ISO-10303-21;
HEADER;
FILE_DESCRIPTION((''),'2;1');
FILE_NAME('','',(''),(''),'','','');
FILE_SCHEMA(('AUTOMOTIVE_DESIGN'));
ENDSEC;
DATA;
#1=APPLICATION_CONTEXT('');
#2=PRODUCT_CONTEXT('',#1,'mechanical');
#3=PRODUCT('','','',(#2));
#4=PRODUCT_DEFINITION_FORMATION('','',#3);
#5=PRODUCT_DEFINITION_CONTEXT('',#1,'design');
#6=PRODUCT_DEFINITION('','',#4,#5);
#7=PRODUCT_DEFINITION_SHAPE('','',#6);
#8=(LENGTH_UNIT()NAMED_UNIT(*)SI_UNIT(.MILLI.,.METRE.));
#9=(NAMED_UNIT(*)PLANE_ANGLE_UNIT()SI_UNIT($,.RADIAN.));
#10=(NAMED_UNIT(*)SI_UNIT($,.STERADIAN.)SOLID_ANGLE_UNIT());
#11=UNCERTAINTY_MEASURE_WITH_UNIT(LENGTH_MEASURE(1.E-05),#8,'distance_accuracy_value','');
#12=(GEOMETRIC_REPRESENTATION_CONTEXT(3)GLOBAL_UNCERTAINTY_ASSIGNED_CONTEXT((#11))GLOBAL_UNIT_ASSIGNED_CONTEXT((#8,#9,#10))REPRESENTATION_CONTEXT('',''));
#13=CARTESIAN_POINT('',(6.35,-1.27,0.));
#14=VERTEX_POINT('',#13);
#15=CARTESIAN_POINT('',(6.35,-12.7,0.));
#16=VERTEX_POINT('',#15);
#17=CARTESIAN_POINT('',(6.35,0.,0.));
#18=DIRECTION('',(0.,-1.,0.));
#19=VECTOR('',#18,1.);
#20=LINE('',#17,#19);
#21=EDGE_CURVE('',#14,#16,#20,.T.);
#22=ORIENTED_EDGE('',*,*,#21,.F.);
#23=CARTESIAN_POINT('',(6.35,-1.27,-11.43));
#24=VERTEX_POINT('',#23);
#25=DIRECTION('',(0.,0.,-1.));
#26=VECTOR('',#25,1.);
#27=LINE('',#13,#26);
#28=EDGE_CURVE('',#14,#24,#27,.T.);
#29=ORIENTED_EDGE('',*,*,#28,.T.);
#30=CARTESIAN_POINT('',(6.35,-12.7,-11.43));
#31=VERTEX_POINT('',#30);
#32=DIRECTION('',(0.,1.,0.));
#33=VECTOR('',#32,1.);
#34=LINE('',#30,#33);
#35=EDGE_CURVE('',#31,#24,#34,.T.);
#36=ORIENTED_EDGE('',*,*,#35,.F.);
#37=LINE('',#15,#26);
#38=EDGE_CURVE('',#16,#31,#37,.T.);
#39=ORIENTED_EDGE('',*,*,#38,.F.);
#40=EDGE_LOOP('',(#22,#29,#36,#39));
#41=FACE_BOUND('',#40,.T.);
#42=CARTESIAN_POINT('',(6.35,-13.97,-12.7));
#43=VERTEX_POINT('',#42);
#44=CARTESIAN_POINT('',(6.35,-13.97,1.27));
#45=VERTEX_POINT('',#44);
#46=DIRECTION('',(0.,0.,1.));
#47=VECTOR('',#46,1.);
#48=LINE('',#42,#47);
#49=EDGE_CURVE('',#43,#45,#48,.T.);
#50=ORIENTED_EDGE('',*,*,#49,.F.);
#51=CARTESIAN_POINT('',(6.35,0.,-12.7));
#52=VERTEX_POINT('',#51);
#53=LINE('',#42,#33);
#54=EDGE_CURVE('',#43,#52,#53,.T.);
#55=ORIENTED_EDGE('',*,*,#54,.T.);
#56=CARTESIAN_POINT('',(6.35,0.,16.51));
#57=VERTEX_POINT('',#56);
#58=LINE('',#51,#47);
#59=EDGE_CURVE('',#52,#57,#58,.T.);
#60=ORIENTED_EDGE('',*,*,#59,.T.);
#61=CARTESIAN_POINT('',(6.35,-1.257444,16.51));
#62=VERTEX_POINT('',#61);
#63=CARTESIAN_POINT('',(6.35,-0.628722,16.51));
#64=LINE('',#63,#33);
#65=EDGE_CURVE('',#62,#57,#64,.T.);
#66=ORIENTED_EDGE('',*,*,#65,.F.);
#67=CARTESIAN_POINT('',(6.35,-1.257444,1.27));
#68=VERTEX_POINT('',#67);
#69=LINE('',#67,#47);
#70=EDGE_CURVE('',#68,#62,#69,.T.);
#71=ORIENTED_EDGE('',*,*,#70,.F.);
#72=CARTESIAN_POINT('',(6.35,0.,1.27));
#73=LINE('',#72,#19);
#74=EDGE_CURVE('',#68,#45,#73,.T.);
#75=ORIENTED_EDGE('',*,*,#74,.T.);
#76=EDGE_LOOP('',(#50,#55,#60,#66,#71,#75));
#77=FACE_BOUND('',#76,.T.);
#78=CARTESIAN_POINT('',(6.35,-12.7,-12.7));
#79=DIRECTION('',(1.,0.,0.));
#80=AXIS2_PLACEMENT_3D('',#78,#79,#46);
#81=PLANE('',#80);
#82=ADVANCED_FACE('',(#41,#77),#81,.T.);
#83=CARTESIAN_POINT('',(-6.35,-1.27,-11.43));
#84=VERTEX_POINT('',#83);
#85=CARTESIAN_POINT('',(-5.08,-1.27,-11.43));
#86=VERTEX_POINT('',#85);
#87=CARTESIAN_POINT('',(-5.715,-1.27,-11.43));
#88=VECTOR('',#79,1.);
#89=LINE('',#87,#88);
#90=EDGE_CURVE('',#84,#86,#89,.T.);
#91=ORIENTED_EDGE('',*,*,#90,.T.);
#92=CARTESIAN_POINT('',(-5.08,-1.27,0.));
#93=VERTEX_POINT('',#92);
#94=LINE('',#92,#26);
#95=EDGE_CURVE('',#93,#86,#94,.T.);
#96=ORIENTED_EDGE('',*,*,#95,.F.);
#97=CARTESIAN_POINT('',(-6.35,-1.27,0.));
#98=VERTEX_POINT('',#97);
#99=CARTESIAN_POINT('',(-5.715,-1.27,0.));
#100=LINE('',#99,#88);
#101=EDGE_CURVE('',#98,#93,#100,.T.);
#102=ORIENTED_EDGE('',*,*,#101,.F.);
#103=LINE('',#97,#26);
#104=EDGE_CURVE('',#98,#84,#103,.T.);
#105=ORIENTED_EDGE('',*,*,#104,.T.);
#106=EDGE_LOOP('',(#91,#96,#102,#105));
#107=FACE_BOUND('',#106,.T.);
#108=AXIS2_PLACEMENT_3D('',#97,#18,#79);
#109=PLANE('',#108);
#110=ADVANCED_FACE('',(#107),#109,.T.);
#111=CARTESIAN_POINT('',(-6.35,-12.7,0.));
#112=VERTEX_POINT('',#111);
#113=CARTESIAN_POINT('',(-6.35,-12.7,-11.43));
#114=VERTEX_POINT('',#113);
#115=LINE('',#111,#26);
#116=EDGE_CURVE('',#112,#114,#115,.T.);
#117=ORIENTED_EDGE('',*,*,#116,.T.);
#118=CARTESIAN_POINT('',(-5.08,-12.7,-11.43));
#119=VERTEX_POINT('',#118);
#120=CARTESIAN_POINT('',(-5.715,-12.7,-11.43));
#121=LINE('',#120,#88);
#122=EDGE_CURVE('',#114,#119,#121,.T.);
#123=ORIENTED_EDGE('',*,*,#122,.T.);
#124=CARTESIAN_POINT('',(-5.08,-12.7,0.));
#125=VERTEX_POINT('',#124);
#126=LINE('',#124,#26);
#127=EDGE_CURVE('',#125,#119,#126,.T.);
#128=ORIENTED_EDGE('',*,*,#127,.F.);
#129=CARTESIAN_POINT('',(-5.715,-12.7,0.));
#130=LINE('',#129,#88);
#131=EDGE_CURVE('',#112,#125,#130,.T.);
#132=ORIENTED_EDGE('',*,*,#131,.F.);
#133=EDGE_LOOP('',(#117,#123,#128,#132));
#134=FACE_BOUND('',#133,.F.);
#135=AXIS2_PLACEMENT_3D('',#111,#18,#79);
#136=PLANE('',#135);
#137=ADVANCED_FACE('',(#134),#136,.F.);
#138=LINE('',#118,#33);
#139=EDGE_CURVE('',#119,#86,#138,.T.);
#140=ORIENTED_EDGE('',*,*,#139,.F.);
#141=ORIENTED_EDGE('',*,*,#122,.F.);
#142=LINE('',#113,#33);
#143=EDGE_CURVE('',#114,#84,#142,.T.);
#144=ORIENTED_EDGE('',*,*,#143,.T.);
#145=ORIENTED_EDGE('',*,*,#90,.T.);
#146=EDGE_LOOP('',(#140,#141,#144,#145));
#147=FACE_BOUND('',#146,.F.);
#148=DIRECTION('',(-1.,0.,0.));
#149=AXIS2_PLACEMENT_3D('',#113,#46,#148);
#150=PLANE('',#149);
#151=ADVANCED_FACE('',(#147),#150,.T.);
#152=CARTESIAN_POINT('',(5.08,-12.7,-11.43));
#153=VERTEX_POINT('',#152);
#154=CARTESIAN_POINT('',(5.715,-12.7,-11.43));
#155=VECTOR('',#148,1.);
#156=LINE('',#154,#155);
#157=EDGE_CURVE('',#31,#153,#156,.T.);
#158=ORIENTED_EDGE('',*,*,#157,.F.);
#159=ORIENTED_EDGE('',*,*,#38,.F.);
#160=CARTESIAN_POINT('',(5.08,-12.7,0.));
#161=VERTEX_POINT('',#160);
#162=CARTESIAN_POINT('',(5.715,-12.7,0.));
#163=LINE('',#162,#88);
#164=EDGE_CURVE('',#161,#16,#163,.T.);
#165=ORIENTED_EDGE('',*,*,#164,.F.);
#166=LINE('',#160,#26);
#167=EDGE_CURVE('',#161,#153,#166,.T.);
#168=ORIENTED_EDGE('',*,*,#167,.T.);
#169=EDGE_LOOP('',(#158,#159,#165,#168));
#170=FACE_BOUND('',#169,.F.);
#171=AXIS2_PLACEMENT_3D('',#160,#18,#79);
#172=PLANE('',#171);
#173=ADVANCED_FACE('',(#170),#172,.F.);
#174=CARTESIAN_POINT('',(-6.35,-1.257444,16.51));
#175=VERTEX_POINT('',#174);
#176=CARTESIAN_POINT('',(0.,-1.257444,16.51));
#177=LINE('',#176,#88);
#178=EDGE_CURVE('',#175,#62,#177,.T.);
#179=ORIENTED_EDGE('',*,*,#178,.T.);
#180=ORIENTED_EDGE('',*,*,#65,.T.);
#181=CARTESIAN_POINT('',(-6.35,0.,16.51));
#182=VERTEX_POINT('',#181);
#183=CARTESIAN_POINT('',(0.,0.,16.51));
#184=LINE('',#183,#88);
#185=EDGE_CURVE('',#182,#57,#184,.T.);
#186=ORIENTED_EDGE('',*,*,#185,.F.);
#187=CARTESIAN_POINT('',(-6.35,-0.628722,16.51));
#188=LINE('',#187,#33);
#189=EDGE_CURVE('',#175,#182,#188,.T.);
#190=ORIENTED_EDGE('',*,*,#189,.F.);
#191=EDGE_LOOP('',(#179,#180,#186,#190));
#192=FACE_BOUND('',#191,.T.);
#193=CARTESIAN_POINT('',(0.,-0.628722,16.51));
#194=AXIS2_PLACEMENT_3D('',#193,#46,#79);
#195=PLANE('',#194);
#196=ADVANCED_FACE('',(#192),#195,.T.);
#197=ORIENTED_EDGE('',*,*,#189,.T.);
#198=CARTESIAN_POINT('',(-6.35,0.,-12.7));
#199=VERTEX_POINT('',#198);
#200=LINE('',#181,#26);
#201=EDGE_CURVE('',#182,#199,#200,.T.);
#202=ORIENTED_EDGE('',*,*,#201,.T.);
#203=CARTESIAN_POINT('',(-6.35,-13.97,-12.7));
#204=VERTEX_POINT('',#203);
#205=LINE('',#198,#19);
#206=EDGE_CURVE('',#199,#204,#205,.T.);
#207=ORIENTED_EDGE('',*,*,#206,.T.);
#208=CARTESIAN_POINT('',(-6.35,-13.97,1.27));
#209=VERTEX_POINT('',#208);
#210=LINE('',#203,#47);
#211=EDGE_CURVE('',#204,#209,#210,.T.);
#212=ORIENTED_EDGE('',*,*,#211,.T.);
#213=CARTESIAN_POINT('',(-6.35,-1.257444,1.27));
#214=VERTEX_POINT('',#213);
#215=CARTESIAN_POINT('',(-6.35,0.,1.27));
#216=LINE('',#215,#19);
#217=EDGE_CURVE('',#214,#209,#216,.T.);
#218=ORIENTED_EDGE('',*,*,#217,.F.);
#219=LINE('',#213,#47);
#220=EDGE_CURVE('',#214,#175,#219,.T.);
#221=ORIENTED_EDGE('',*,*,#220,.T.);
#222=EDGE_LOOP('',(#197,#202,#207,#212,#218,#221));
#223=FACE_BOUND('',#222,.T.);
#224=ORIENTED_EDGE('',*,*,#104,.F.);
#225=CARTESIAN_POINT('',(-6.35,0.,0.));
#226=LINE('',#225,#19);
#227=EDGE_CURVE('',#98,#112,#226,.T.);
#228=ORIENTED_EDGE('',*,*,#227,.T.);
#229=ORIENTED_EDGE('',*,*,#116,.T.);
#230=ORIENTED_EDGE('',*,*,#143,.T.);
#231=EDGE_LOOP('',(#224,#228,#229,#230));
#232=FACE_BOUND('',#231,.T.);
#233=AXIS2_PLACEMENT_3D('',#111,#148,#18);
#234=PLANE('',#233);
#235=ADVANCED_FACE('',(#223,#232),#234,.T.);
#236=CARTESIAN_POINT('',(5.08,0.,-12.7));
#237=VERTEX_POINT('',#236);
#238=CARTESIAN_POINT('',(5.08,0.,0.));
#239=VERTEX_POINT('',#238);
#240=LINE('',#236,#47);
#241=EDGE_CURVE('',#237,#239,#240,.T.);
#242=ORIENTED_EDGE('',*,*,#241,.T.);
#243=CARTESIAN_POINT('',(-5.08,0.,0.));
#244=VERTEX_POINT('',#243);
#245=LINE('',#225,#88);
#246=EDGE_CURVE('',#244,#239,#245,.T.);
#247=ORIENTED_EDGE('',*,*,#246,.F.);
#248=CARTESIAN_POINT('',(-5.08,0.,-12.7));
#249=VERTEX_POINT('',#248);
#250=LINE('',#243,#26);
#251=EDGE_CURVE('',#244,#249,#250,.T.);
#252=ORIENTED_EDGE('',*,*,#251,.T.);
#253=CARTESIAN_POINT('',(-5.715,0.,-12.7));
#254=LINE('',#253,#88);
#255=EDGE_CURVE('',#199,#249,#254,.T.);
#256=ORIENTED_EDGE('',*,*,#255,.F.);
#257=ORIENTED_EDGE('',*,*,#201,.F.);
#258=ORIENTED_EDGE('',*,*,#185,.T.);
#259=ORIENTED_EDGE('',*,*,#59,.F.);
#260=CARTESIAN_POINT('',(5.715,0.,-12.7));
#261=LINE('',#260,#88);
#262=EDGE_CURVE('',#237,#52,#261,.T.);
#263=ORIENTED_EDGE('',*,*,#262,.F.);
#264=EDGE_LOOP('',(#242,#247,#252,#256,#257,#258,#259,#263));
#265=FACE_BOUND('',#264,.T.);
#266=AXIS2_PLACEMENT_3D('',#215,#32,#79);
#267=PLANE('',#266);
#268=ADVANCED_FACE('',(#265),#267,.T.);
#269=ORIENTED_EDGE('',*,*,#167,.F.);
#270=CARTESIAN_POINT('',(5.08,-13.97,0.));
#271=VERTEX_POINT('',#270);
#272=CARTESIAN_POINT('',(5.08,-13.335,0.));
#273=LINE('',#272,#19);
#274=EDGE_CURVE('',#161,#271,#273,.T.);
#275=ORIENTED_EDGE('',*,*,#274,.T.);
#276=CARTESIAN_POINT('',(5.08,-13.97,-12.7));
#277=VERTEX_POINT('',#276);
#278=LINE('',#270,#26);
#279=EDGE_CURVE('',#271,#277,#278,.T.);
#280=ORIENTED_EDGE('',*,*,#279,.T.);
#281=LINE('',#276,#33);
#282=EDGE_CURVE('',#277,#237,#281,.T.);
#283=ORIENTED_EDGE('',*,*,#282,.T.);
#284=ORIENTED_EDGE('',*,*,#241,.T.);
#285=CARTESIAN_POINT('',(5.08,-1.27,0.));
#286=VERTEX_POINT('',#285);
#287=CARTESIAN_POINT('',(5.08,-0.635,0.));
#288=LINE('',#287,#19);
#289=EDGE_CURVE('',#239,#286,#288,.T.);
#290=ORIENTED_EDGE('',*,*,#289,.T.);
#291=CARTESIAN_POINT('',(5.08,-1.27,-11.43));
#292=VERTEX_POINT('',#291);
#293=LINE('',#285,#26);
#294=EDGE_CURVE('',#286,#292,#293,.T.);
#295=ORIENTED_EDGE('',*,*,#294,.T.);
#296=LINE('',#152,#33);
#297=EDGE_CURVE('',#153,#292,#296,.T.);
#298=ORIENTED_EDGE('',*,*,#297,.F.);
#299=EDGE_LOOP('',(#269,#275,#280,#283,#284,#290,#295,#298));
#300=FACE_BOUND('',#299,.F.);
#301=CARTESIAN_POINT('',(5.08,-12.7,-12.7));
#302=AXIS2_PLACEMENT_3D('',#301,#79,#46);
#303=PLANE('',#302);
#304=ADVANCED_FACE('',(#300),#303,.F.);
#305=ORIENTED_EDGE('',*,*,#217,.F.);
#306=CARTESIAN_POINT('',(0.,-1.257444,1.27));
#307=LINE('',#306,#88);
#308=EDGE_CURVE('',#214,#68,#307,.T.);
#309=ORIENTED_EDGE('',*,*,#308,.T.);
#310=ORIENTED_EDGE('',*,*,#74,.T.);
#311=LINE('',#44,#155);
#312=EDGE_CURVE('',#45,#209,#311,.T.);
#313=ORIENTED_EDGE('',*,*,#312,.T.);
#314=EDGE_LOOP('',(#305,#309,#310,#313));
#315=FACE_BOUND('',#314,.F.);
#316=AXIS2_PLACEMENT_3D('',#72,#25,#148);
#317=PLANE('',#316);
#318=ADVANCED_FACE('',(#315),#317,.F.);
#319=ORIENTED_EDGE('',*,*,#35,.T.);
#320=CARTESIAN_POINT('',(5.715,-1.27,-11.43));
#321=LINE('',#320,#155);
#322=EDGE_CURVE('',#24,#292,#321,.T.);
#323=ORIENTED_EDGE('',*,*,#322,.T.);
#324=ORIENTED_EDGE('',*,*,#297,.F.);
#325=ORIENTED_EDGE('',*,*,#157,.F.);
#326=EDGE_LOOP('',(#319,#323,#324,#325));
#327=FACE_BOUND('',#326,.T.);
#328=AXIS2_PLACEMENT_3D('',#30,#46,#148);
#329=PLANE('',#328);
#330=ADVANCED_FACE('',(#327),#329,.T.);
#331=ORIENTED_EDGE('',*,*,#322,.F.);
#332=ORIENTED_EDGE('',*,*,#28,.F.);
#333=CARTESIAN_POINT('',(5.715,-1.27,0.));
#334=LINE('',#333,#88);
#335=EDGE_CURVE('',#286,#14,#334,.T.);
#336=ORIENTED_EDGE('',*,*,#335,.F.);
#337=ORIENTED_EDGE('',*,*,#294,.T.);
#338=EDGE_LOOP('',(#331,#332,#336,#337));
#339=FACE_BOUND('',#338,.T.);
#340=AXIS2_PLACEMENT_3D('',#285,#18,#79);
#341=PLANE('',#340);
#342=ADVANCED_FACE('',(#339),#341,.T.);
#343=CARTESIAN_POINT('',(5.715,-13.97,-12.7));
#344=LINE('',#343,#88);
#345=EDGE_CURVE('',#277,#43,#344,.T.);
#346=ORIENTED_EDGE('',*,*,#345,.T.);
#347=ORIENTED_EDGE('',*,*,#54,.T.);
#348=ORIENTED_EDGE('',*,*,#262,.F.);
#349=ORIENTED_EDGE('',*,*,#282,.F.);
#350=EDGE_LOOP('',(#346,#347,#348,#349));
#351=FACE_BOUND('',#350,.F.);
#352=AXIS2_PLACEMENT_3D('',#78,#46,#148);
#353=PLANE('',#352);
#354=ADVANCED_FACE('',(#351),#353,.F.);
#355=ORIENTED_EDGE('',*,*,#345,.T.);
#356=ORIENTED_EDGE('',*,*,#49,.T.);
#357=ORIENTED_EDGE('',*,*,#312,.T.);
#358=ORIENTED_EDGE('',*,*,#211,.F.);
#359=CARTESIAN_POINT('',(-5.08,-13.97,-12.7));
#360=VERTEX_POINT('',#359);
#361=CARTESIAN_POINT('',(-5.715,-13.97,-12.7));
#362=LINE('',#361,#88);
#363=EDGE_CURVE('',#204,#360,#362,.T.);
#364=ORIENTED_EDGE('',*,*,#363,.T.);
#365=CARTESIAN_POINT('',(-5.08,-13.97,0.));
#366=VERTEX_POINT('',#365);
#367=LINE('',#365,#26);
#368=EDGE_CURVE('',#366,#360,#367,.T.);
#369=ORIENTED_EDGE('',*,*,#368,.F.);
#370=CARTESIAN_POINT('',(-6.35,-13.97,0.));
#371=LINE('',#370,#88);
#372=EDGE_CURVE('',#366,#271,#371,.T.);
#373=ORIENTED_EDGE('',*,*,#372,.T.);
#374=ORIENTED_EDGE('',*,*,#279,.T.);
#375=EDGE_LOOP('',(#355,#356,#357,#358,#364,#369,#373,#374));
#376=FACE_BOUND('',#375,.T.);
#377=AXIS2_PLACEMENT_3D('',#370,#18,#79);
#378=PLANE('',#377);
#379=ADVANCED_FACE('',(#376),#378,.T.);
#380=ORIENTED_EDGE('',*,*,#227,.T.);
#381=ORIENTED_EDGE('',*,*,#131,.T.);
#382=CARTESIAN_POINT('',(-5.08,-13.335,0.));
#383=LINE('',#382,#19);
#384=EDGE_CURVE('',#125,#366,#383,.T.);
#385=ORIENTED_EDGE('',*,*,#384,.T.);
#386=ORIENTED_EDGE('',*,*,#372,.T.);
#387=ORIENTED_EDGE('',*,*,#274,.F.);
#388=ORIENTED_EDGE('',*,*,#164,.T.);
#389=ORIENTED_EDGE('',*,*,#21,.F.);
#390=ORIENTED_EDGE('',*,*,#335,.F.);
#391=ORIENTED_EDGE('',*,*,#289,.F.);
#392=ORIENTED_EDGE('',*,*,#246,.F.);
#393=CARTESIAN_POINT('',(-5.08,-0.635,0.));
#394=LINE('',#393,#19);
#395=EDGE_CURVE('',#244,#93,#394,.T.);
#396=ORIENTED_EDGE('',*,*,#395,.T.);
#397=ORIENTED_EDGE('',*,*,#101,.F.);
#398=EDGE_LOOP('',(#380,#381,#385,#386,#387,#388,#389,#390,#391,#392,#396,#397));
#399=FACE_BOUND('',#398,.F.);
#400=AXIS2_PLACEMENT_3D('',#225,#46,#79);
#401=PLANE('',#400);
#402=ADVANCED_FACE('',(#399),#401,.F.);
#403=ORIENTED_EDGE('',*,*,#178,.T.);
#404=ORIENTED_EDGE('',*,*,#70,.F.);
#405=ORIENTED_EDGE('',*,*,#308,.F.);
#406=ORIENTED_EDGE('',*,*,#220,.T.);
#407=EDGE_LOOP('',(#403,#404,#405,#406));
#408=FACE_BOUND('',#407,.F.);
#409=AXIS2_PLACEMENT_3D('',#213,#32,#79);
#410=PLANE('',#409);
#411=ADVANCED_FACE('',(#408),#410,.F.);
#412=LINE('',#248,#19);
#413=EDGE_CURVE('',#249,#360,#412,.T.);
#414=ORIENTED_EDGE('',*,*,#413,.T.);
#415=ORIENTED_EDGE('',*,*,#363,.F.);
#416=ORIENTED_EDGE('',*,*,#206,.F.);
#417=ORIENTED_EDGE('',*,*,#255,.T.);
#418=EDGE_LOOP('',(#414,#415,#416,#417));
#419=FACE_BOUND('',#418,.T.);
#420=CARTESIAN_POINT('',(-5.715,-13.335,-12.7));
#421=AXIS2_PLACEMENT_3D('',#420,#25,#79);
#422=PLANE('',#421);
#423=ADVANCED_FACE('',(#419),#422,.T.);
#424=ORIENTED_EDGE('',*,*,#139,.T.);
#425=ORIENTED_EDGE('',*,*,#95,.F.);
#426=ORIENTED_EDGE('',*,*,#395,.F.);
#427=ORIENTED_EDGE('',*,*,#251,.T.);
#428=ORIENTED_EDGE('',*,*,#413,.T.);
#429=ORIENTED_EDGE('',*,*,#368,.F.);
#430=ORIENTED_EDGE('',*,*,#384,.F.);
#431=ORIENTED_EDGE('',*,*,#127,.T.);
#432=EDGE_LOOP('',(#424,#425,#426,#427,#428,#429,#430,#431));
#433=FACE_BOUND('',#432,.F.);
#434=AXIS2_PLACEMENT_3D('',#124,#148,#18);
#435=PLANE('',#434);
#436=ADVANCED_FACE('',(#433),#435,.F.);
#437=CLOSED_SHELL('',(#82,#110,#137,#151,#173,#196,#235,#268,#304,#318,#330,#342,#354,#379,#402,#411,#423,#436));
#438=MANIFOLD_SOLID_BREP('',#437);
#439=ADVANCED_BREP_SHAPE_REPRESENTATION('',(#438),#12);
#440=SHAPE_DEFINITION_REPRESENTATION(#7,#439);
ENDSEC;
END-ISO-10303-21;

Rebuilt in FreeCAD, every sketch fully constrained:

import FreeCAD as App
import Part
import Sketcher
Q = App.Units.Quantity


def add_polygon(sketch, points):
    """Adds a closed chain of lines whose ends are joined by coincident constraints."""
    first, n = sketch.GeometryCount, len(points)
    for a, b in zip(points, points[1:] + points[:1]):
        sketch.addGeometry(Part.LineSegment(App.Vector(*a, 0), App.Vector(*b, 0)), False)
    for i in range(n):
        sketch.addConstraint(Sketcher.Constraint("Coincident", first + i, 2, first + (i + 1) % n, 1))

doc = App.newDocument("Part")
body = doc.addObject("PartDesign::Body", "Body")

sketch1 = doc.addObject("Sketcher::SketchObject", "Sketch")
body.addObject(sketch1)
sketch1.AttachmentSupport = (doc.XZ_Plane, [""])
sketch1.MapMode = "FlatFace"
add_polygon(sketch1, [(-6.3, 0), (6.3, 0), (6.3, 1.3), (-6.3, 1.3)])
sketch1.addConstraint(Sketcher.Constraint("Horizontal", 0))
sketch1.addConstraint(Sketcher.Constraint("Vertical", 1))
sketch1.addConstraint(Sketcher.Constraint("Horizontal", 2))
sketch1.addConstraint(Sketcher.Constraint("Vertical", 3))
sketch1.addConstraint(Sketcher.Constraint("Symmetric", 0, 2, 3, 2, -1, 1))
sketch1.addConstraint(Sketcher.Constraint("DistanceX", 0, 1, 0, 2, Q("0.5 in")))
sketch1.addConstraint(Sketcher.Constraint("DistanceY", 1, 1, 1, 2, Q("0.05 in")))
pad1 = doc.addObject("PartDesign::Pad", "Pad")
body.addObject(pad1)
pad1.Profile = sketch1
pad1.Length = Q("0.55 in")

sketch2 = doc.addObject("Sketcher::SketchObject", "Sketch001")
body.addObject(sketch2)
sketch2.AttachmentSupport = (doc.XY_Plane, [""])
sketch2.MapMode = "FlatFace"
sketch2.AttachmentOffset = App.Placement(App.Vector(0, 0, 0.05 * 25.4), App.Rotation())
add_polygon(sketch2, [(-6.3, 0), (-6.3, -1.3), (6.3, -1.3), (6.3, 0)])
sketch2.addConstraint(Sketcher.Constraint("Vertical", 0))
sketch2.addConstraint(Sketcher.Constraint("Horizontal", 1))
sketch2.addConstraint(Sketcher.Constraint("Vertical", 2))
sketch2.addConstraint(Sketcher.Constraint("Horizontal", 3))
sketch2.addConstraint(Sketcher.Constraint("Symmetric", 2, 2, 3, 2, -1, 1))
sketch2.addConstraint(Sketcher.Constraint("DistanceX", 1, 1, 1, 2, Q("0.5 in")))
sketch2.addConstraint(Sketcher.Constraint("DistanceY", 0, 2, 0, 1, Q("1.257444 mm")))
pad2 = doc.addObject("PartDesign::Pad", "Pad001")
body.addObject(pad2)
pad2.Profile = sketch2
pad2.Length = Q("0.6 in")

sketch3 = doc.addObject("Sketcher::SketchObject", "Sketch002")
body.addObject(sketch3)
sketch3.AttachmentSupport = (doc.XY_Plane, [""])
sketch3.MapMode = "FlatFace"
add_polygon(sketch3, [(-6.3, -14), (-6.3, -12.7), (-5.1, -12.7), (-5.1, -14)])
add_polygon(sketch3, [(-6.3, -1.3), (-6.3, 0), (-5.1, 0), (-5.1, -1.3)])
add_polygon(sketch3, [(5.1, -1.3), (5.1, 0), (6.3, 0), (6.3, -1.3)])
add_polygon(sketch3, [(5.1, -14), (5.1, -12.7), (6.3, -12.7), (6.3, -14)])
sketch3.addConstraint(Sketcher.Constraint("Vertical", 0))
sketch3.addConstraint(Sketcher.Constraint("Horizontal", 1))
sketch3.addConstraint(Sketcher.Constraint("Vertical", 2))
sketch3.addConstraint(Sketcher.Constraint("Horizontal", 3))
sketch3.addConstraint(Sketcher.Constraint("Vertical", 4))
sketch3.addConstraint(Sketcher.Constraint("Horizontal", 5))
sketch3.addConstraint(Sketcher.Constraint("Vertical", 6))
sketch3.addConstraint(Sketcher.Constraint("Horizontal", 7))
sketch3.addConstraint(Sketcher.Constraint("Vertical", 8))
sketch3.addConstraint(Sketcher.Constraint("Horizontal", 9))
sketch3.addConstraint(Sketcher.Constraint("Vertical", 10))
sketch3.addConstraint(Sketcher.Constraint("Horizontal", 11))
sketch3.addConstraint(Sketcher.Constraint("Vertical", 12))
sketch3.addConstraint(Sketcher.Constraint("Horizontal", 13))
sketch3.addConstraint(Sketcher.Constraint("Vertical", 14))
sketch3.addConstraint(Sketcher.Constraint("Horizontal", 15))
sketch3.addConstraint(Sketcher.Constraint("Symmetric", 5, 2, 8, 2, -1, 1))
sketch3.addConstraint(Sketcher.Constraint("Symmetric", 4, 2, 9, 2, -2))
sketch3.addConstraint(Sketcher.Constraint("Symmetric", 1, 2, 12, 2, -2))
sketch3.addConstraint(Sketcher.Constraint("Symmetric", 3, 2, 14, 2, -2))
sketch3.addConstraint(Sketcher.Constraint("Horizontal", 7, 2, 10, 2))
sketch3.addConstraint(Sketcher.Constraint("Vertical", 3, 2, 4, 2))
sketch3.addConstraint(Sketcher.Constraint("Vertical", 2, 2, 5, 2))
sketch3.addConstraint(Sketcher.Constraint("Equal", 15, 0))
sketch3.addConstraint(Sketcher.Constraint("Equal", 2, 4))
sketch3.addConstraint(Sketcher.Constraint("DistanceX", 1, 1, 1, 2, Q("0.05 in")))
sketch3.addConstraint(Sketcher.Constraint("DistanceY", 0, 2, -1, 1, Q("0.5 in")))
sketch3.addConstraint(Sketcher.Constraint("DistanceX", 1, 2, -1, 1, Q("0.2 in")))
pad3 = doc.addObject("PartDesign::Pad", "Pad002")
body.addObject(pad3)
pad3.Profile = sketch3
pad3.Length = Q("0.5 in")
pad3.Reversed = True

sketch4 = doc.addObject("Sketcher::SketchObject", "Sketch003")
body.addObject(sketch4)
sketch4.AttachmentSupport = (doc.XZ_Plane, [""])
sketch4.MapMode = "FlatFace"
sketch4.AttachmentOffset = App.Placement(App.Vector(0, 0, 0.5 * 25.4), App.Rotation())
add_polygon(sketch4, [(6.3, -11.4), (6.3, -12.7), (5.1, -12.7), (5.1, -11.4)])
sketch4.addConstraint(Sketcher.Constraint("Vertical", 0))
sketch4.addConstraint(Sketcher.Constraint("Horizontal", 1))
sketch4.addConstraint(Sketcher.Constraint("Vertical", 2))
sketch4.addConstraint(Sketcher.Constraint("Horizontal", 3))
sketch4.addConstraint(Sketcher.Constraint("Equal", 3, 0))
sketch4.addConstraint(Sketcher.Constraint("DistanceX", 1, 2, 1, 1, Q("0.05 in")))
sketch4.addConstraint(Sketcher.Constraint("DistanceY", 0, 2, -1, 1, Q("0.5 in")))
sketch4.addConstraint(Sketcher.Constraint("DistanceX", -1, 1, 1, 2, Q("0.2 in")))
pad4 = doc.addObject("PartDesign::Pad", "Pad003")
body.addObject(pad4)
pad4.Profile = sketch4
pad4.Length = Q("0.5 in")
pad4.Reversed = True
body2 = doc.addObject("PartDesign::Body", "Body001")
doc.recompute()

body2.BaseFeature = body
doc.recompute()

mirroring = doc.addObject("Part::Mirroring", "Mirroring")
mirroring.Source = body
mirroring.Base = App.Vector(0, 0, 0)
mirroring.Normal = App.Vector(1, 0, 0)
body3 = doc.addObject("PartDesign::Body", "Body002")
body3.BaseFeature = mirroring
boolean = doc.addObject("PartDesign::Boolean", "Boolean")
body2.addObject(boolean)
boolean.Type = "Fuse"
boolean.addObjects([body3])
doc.recompute()
mirroring.Visibility = False

doc.recompute()
